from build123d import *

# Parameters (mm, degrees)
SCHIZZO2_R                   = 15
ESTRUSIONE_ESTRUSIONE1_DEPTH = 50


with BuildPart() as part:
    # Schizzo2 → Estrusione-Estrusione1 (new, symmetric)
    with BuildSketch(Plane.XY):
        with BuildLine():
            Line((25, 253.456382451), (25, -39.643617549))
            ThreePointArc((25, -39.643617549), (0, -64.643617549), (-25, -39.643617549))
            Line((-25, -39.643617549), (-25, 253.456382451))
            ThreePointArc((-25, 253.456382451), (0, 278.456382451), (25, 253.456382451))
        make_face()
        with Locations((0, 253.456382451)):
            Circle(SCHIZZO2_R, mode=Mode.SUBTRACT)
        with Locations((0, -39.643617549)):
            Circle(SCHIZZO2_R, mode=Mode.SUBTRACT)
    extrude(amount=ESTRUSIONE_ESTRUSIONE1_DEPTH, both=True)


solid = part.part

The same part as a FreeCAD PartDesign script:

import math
import FreeCAD as App
import Part
import Sketcher

V = App.Vector
Q = App.Units.Quantity

doc = App.newDocument("Part")
body = doc.addObject("PartDesign::Body", "Body")

# Sketch on XY plane
sketch1 = body.newObject("Sketcher::SketchObject", "Sketch")
sketch1.AttachmentSupport = (doc.getObject("XY_Plane"), [""])
sketch1.MapMode = "FlatFace"
sketch1.addGeometry([
    Part.LineSegment(V(25, -40, 0), V(25, 253, 0)),  # 0
    Part.ArcOfCircle(Part.Circle(V(0, 253, 0), V(0, 0, 1), 25), math.radians(0), math.radians(180)),  # 1
    Part.LineSegment(V(-25, 253, 0), V(-25, -40, 0)),  # 2
    Part.ArcOfCircle(Part.Circle(V(0, -40, 0), V(0, 0, 1), 25), math.radians(180), math.radians(360)),  # 3
    Part.Circle(V(0, -40, 0), V(0, 0, 1), 15),  # 4
    Part.Circle(V(0, 253, 0), V(0, 0, 1), 15),  # 5
], False)
sketch1.addConstraint([
    Sketcher.Constraint("Tangent", 0, 2, 1, 1),
    Sketcher.Constraint("Tangent", 1, 2, 2, 1),
    Sketcher.Constraint("Tangent", 2, 2, 3, 1),
    Sketcher.Constraint("Tangent", 3, 2, 0, 1),
    Sketcher.Constraint("Vertical", 0),
    Sketcher.Constraint("Vertical", 2),
    Sketcher.Constraint("Coincident", 4, 3, 3, 3),
    Sketcher.Constraint("Coincident", 5, 3, 1, 3),
    Sketcher.Constraint("Equal", 4, 5),
    Sketcher.Constraint("PointOnObject", 1, 3, -2),
    Sketcher.Constraint("Diameter", 4, Q("30 mm")),
    Sketcher.Constraint("Radius", 1, Q("25 mm")),
    Sketcher.Constraint("DistanceY", 0, 1, 0, 2, Q("293.1 mm")),
    Sketcher.Constraint("DistanceY", -1, 1, 1, 3, Q("253.456382 mm")),
])
pad1 = body.newObject("PartDesign::Pad", "Pad")
pad1.Profile = sketch1
pad1.Length = 100
pad1.Midplane = True

doc.recompute()
